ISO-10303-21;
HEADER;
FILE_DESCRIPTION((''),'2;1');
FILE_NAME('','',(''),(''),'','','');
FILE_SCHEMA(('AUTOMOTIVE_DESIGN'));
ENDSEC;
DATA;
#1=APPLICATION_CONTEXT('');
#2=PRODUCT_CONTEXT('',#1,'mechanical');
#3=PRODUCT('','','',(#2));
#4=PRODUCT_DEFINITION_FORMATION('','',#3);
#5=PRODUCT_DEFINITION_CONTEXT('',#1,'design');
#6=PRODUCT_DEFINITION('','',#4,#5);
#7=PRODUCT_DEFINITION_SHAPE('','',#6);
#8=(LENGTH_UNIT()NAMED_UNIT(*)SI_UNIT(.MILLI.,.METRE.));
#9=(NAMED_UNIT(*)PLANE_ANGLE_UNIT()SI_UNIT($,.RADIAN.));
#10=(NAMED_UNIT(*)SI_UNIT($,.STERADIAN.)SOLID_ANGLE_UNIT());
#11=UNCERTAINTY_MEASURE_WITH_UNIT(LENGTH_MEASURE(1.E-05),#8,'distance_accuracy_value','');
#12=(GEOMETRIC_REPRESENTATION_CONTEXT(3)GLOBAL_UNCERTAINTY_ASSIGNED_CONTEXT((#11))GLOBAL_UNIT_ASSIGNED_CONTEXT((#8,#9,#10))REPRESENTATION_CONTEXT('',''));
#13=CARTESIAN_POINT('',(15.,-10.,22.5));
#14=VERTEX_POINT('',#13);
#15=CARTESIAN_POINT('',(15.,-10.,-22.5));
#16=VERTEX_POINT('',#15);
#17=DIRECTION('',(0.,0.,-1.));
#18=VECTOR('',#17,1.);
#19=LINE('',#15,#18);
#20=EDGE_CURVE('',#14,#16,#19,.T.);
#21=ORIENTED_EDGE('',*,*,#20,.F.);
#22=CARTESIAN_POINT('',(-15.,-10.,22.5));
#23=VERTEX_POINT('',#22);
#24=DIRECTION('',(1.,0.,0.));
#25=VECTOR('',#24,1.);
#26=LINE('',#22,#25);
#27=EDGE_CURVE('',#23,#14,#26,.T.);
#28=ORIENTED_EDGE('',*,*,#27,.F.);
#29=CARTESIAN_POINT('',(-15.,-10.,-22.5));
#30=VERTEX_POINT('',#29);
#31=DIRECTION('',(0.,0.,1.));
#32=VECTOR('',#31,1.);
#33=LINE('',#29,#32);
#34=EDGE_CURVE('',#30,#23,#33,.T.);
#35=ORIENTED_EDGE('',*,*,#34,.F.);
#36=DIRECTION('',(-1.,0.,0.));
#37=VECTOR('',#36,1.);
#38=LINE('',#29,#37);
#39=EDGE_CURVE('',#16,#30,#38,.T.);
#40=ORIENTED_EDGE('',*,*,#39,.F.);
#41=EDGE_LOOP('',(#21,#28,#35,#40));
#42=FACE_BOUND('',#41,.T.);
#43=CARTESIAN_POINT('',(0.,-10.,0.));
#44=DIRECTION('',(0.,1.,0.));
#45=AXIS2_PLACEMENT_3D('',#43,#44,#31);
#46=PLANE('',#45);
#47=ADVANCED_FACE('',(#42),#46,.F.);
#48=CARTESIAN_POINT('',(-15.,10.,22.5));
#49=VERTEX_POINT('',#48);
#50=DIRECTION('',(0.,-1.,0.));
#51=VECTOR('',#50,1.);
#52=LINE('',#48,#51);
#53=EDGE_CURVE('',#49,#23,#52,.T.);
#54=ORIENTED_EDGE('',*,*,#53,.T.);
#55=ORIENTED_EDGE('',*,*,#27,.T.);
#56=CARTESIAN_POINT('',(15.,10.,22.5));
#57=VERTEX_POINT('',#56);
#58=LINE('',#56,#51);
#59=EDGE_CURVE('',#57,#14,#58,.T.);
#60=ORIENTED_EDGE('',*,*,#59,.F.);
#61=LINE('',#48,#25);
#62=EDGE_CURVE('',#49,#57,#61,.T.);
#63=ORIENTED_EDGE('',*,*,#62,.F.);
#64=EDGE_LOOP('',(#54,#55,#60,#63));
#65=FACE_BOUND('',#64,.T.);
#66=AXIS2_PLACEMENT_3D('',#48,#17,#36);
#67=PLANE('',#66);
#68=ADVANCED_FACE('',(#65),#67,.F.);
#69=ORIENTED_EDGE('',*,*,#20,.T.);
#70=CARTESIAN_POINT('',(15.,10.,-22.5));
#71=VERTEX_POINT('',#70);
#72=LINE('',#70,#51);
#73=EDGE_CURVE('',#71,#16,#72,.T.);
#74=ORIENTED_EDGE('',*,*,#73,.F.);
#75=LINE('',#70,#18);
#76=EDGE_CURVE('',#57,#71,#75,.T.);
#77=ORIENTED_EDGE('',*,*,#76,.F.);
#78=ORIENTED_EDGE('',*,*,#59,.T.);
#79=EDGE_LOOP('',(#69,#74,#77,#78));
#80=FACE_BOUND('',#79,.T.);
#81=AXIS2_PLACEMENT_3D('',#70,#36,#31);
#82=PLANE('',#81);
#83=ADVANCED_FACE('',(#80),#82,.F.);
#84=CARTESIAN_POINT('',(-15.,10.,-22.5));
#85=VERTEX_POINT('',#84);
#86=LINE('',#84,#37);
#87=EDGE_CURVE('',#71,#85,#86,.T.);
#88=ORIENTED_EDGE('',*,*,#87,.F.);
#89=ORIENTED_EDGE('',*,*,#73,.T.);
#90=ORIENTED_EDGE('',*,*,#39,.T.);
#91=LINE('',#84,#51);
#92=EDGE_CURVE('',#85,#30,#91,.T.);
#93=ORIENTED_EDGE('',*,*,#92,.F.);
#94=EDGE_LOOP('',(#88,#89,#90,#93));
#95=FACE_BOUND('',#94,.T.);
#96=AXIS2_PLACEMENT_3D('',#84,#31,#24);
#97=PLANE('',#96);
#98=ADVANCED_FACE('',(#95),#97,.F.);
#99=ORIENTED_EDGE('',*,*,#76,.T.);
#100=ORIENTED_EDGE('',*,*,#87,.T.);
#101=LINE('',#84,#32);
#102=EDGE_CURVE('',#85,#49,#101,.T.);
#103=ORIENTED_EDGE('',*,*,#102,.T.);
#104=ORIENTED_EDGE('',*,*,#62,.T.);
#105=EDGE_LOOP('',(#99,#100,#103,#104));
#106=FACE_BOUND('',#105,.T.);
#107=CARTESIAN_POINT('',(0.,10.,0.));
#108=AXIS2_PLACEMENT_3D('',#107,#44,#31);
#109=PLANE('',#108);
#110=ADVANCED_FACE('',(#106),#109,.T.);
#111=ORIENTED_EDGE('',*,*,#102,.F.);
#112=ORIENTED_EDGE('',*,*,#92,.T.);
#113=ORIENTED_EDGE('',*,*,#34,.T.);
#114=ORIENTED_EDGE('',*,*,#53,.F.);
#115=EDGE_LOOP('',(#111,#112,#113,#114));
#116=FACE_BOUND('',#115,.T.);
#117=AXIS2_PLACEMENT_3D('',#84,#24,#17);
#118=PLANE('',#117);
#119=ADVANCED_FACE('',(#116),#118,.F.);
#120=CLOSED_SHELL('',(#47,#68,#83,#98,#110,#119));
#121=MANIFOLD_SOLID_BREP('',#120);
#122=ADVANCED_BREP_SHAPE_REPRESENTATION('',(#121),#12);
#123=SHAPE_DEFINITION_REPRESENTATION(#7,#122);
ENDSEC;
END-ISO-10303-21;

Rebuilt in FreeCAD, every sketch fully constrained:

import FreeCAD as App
import Part
import Sketcher

V = App.Vector
Q = App.Units.Quantity

doc = App.newDocument("Part")
body = doc.addObject("PartDesign::Body", "Body")

sketch1 = body.newObject("Sketcher::SketchObject", "Sketch")
sketch1.AttachmentSupport = (doc.getObject("XZ_Plane"), [""])
sketch1.MapMode = "FlatFace"
sketch1.addGeometry(Part.LineSegment(V(-15, -22, 0), V(-15, 22, 0)), False)
sketch1.addGeometry(Part.LineSegment(V(-15, 22, 0), V(15, 22, 0)), False)
sketch1.addGeometry(Part.LineSegment(V(15, 22, 0), V(15, -22, 0)), False)
sketch1.addGeometry(Part.LineSegment(V(15, -22, 0), V(-15, -22, 0)), False)
sketch1.addConstraint(Sketcher.Constraint("Coincident", 0, 2, 1, 1))
sketch1.addConstraint(Sketcher.Constraint("Coincident", 1, 2, 2, 1))
sketch1.addConstraint(Sketcher.Constraint("Coincident", 2, 2, 3, 1))
sketch1.addConstraint(Sketcher.Constraint("Coincident", 3, 2, 0, 1))
sketch1.addConstraint(Sketcher.Constraint("Vertical", 0))
sketch1.addConstraint(Sketcher.Constraint("Horizontal", 1))
sketch1.addConstraint(Sketcher.Constraint("Vertical", 2))
sketch1.addConstraint(Sketcher.Constraint("Horizontal", 3))
sketch1.addConstraint(Sketcher.Constraint("Symmetric", 0, 2, 2, 2, -1, 1))
sketch1.addConstraint(Sketcher.Constraint("DistanceX", 1, 1, 1, 2, Q("30 mm")))
sketch1.addConstraint(Sketcher.Constraint("DistanceY", 0, 1, 0, 2, Q("45 mm")))
pad1 = body.newObject("PartDesign::Pad", "Pad")
pad1.Profile = sketch1
pad1.Length = 20
pad1.Midplane = True

doc.recompute()
